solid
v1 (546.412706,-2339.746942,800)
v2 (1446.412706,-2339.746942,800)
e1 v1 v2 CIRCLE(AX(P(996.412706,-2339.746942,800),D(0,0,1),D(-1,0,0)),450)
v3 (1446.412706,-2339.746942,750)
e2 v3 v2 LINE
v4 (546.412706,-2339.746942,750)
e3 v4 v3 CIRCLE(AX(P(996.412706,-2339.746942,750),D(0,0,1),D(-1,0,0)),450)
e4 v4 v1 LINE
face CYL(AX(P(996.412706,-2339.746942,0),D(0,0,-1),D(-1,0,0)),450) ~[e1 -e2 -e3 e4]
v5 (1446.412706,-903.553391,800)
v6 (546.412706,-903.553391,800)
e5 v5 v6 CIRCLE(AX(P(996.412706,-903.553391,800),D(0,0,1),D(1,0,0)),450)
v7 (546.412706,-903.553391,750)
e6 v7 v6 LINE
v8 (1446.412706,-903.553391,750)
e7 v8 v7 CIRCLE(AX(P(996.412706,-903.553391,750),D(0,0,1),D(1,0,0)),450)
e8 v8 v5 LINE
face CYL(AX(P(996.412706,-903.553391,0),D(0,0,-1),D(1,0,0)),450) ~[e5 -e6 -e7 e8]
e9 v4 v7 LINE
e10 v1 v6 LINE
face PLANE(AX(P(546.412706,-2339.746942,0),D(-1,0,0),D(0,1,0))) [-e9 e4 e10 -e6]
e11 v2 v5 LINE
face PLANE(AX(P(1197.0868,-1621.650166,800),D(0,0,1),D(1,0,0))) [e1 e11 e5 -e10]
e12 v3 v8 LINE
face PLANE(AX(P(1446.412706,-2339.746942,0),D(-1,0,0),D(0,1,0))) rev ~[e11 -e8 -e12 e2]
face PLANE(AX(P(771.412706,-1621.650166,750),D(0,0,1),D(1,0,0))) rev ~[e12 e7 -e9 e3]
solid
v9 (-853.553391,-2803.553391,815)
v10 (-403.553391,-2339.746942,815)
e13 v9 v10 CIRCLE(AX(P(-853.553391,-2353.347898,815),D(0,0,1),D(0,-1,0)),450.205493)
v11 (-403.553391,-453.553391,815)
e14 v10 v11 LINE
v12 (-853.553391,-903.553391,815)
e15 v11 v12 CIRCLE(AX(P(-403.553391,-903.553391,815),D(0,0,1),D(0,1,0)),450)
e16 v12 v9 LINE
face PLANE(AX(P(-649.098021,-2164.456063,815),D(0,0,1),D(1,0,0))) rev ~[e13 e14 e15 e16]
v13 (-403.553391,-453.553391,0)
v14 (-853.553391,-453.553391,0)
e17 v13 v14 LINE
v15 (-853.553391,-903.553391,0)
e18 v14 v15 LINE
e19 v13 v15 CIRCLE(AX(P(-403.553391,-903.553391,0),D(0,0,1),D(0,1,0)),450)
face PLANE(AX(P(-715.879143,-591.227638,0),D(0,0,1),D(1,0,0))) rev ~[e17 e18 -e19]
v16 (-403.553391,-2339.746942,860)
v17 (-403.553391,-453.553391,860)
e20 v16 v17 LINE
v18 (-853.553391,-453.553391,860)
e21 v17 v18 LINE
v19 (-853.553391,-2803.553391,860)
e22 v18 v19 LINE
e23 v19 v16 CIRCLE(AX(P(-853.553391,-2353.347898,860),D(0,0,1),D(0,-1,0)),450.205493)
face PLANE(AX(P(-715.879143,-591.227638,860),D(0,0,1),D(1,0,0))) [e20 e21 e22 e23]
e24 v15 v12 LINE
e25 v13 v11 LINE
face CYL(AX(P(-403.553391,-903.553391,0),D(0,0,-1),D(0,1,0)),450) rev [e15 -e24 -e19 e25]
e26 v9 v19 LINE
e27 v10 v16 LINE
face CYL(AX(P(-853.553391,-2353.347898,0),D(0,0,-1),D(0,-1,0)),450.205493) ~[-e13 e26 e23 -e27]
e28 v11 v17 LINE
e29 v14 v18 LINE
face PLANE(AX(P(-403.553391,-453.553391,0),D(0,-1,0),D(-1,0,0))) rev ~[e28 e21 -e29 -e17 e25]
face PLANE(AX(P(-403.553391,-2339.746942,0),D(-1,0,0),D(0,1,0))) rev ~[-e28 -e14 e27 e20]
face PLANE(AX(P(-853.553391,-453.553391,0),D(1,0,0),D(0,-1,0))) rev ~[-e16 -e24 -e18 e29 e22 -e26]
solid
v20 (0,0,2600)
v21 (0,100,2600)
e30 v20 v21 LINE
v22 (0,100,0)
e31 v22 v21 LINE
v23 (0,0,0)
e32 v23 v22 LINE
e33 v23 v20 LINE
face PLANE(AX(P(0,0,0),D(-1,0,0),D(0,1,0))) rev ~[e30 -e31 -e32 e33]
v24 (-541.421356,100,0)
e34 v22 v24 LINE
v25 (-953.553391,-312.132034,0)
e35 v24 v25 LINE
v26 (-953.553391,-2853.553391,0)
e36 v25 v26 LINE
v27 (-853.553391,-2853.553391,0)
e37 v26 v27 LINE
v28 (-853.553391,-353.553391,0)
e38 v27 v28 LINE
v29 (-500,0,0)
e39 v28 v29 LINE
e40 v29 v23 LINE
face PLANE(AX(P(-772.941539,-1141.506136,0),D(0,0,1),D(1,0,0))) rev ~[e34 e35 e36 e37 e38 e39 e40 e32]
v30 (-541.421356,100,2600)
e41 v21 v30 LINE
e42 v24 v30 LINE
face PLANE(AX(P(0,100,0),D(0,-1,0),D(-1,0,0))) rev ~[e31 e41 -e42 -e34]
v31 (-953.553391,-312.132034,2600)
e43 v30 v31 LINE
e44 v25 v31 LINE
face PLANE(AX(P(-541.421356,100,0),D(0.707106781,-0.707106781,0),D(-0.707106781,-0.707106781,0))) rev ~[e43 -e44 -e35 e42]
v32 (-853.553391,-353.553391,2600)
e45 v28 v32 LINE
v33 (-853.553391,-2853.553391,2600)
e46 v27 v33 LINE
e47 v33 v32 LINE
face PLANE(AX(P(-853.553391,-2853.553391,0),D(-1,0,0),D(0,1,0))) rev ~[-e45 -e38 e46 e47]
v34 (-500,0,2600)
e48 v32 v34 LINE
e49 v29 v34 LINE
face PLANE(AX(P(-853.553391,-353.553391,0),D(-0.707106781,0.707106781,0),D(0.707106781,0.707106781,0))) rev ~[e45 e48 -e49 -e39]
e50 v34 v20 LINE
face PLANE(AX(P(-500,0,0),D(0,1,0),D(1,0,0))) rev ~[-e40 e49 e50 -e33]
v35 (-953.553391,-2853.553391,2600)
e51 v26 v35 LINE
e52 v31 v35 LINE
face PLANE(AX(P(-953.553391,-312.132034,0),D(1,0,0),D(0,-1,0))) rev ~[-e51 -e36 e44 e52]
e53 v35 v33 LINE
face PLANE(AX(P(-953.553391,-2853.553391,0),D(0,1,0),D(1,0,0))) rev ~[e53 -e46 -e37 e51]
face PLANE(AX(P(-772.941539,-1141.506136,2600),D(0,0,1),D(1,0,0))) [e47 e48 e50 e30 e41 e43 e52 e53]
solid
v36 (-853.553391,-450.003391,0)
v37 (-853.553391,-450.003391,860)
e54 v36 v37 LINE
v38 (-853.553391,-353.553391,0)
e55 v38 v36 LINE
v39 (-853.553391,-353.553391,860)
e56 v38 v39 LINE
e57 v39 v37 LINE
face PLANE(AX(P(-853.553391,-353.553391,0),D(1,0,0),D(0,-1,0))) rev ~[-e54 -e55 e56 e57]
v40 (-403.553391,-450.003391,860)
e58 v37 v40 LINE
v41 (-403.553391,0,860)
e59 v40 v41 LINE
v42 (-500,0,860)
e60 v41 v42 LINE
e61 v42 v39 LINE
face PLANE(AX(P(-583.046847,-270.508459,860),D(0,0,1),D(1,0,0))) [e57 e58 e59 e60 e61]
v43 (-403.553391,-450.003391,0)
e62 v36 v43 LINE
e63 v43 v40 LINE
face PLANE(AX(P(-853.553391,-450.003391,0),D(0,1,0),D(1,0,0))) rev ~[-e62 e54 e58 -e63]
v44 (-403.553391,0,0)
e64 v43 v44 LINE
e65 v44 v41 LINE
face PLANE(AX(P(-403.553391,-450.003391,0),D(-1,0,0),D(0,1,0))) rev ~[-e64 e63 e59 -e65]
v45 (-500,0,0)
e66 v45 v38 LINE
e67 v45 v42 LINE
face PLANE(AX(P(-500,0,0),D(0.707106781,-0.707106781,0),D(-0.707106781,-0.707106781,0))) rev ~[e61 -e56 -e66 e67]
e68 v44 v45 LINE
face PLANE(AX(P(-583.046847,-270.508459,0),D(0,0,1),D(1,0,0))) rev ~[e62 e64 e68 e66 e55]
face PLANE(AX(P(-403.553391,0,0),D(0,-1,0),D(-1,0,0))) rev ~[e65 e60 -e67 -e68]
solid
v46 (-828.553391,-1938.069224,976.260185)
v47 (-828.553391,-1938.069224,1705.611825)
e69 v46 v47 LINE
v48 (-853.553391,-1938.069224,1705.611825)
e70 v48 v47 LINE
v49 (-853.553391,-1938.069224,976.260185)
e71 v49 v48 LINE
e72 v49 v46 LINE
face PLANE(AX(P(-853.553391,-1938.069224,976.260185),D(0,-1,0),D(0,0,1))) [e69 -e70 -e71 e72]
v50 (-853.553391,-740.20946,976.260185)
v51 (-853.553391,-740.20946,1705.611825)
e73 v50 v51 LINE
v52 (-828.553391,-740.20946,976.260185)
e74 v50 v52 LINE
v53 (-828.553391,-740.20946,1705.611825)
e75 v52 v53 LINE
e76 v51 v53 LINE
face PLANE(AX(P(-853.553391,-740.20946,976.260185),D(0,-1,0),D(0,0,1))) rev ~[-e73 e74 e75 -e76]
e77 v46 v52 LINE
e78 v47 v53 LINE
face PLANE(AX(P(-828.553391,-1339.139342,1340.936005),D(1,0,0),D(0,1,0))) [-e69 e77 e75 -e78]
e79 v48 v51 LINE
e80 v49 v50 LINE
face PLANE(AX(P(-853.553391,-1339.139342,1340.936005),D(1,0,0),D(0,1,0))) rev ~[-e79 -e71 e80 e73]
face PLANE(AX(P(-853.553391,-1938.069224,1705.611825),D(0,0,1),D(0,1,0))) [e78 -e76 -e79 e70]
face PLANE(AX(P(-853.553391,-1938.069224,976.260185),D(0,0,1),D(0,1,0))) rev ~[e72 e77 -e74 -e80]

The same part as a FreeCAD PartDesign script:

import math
import FreeCAD as App
import Part
import Sketcher
from FreeCAD import Vector
Q = App.Units.Quantity


def add_polygon(sketch, points):
    """Adds a closed chain of lines whose ends are joined by coincident constraints."""
    first, n = sketch.GeometryCount, len(points)
    for a, b in zip(points, points[1:] + points[:1]):
        sketch.addGeometry(Part.LineSegment(App.Vector(*a, 0), App.Vector(*b, 0)), False)
    for i in range(n):
        sketch.addConstraint(Sketcher.Constraint("Coincident", first + i, 2, first + (i + 1) % n, 1))

doc = App.newDocument("Part")
body = doc.addObject("PartDesign::Body", "Body")

# Sketch on XY plane
sketch1 = doc.addObject("Sketcher::SketchObject", "Sketch")
body.addObject(sketch1)
sketch1.AttachmentSupport = (doc.XY_Plane, [""])
sketch1.MapMode = "FlatFace"
add_polygon(sketch1, [(0, 0), (0, 100), (-541, 100), (-954, -312), (-954, -2854), (-854, -2854), (-854, -354), (-500, 0)])  # lines 0-7
sketch1.addConstraint([
    Sketcher.Constraint("Vertical", 0),
    Sketcher.Constraint("Horizontal", 1),
    Sketcher.Constraint("Vertical", 3),
    Sketcher.Constraint("Horizontal", 4),
    Sketcher.Constraint("Vertical", 5),
    Sketcher.Constraint("Horizontal", 7),
    Sketcher.Constraint("Coincident", 7, 2, -1, 1),
    Sketcher.Constraint("Parallel", 2, 6),
    Sketcher.Constraint("Equal", 4, 0),
    Sketcher.Constraint("DistanceX", 4, 1, 4, 2, Q("100 mm")),
    Sketcher.Constraint("DistanceX", 7, 1, 7, 2, Q("500 mm")),
    Sketcher.Constraint("DistanceY", 5, 1, 5, 2, Q("2500 mm")),
    Sketcher.Constraint("Angle", 2, Q("-135 deg")),
    Sketcher.Constraint("Distance", 6, Q("500 mm")),
    Sketcher.Constraint("DistanceX", 1, 2, 1, 1, Q("541.421356 mm")),
])
pad1 = doc.addObject("PartDesign::Pad", "Pad")
body.addObject(pad1)
pad1.Profile = sketch1
pad1.Length = 2600
body2 = doc.addObject("PartDesign::Body", "Body001")

# Sketch on XY plane
sketch2 = doc.addObject("Sketcher::SketchObject", "Sketch001")
body2.addObject(sketch2)
sketch2.AttachmentSupport = (doc.getObject("XY_Plane001"), [""])
sketch2.MapMode = "FlatFace"
add_polygon(sketch2, [(-404, -450), (-404, 0), (-500, 0), (-854, -354), (-854, -450)])  # lines 0-4
sketch2.addConstraint([
    Sketcher.Constraint("Vertical", 0),
    Sketcher.Constraint("Horizontal", 1),
    Sketcher.Constraint("Vertical", 3),
    Sketcher.Constraint("Horizontal", 4),
    Sketcher.Constraint("PointOnObject", 0, 2, -1),
    Sketcher.Constraint("DistanceX", 4, 1, 4, 2, Q("450 mm")),
    Sketcher.Constraint("Angle", 2, Q("-135 deg")),
    Sketcher.Constraint("Distance", 2, Q("500 mm")),
    Sketcher.Constraint("DistanceX", 1, 2, -1, 1, Q("500 mm")),
    Sketcher.Constraint("DistanceY", 3, 2, 3, 1, Q("96.45 mm")),
])
pad2 = doc.addObject("PartDesign::Pad", "Pad001")
body2.addObject(pad2)
pad2.Profile = sketch2
pad2.Length = 860
body3 = doc.addObject("PartDesign::Body", "Body002")

# Sketch on XY plane
sketch3 = doc.addObject("Sketcher::SketchObject", "Sketch002")
body3.addObject(sketch3)
sketch3.AttachmentSupport = (doc.getObject("XY_Plane002"), [""])
sketch3.MapMode = "FlatFace"
sketch3.addGeometry([
    Part.LineSegment(Vector(-404, -454, 0), Vector(-854, -454, 0)),
    Part.LineSegment(Vector(-854, -454, 0), Vector(-854, -2804, 0)),
    Part.ArcOfCircle(Part.Circle(Vector(-854, -2353, 0), Vector(0, 0, 1), 450), math.radians(-90), math.radians(2)),
    Part.LineSegment(Vector(-404, -2340, 0), Vector(-404, -454, 0)),
], False)
sketch3.addConstraint([
    Sketcher.Constraint("Coincident", 0, 2, 1, 1),
    Sketcher.Constraint("Coincident", 1, 2, 2, 1),
    Sketcher.Constraint("Coincident", 2, 2, 3, 1),
    Sketcher.Constraint("Coincident", 3, 2, 0, 1),
    Sketcher.Constraint("Horizontal", 0),
    Sketcher.Constraint("Vertical", 1),
    Sketcher.Constraint("Vertical", 3),
    Sketcher.Constraint("Vertical", 2, 3, 0, 2),
    Sketcher.Constraint("DistanceX", 0, 2, 0, 1, Q("450 mm")),
    Sketcher.Constraint("DistanceY", 1, 2, 1, 1, Q("2350 mm")),
    Sketcher.Constraint("Radius", 2, Q("450.205493 mm")),
    Sketcher.Constraint("DistanceX", 2, 3, -1, 1, Q("853.553391 mm")),
    Sketcher.Constraint("DistanceY", 0, 2, -1, 1, Q("453.553391 mm")),
])
pad3 = doc.addObject("PartDesign::Pad", "Pad002")
body3.addObject(pad3)
pad3.Profile = sketch3
pad3.Length = 860

# Sketch on XY plane
sketch4 = doc.addObject("Sketcher::SketchObject", "Sketch003")
body3.addObject(sketch4)
sketch4.AttachmentSupport = (doc.getObject("XY_Plane002"), [""])
sketch4.MapMode = "FlatFace"
sketch4.addGeometry([
    Part.ArcOfCircle(Part.Circle(Vector(-854, -2353, 0), Vector(0, 0, 1), 450), math.radians(-90), math.radians(2)),
    Part.LineSegment(Vector(-404, -2340, 0), Vector(-404, -454, 0)),
    Part.ArcOfCircle(Part.Circle(Vector(-404, -904, 0), Vector(0, 0, 1), 450), math.radians(90), math.radians(180)),
    Part.LineSegment(Vector(-854, -904, 0), Vector(-854, -2804, 0)),
], False)
sketch4.addConstraint([
    Sketcher.Constraint("Coincident", 0, 2, 1, 1),
    Sketcher.Constraint("Coincident", 1, 2, 2, 1),
    Sketcher.Constraint("Tangent", 2, 2, 3, 1),
    Sketcher.Constraint("Coincident", 3, 2, 0, 1),
    Sketcher.Constraint("Vertical", 1),
    Sketcher.Constraint("Vertical", 3),
    Sketcher.Constraint("Vertical", 2, 3, 0, 2),
    Sketcher.Constraint("Vertical", 0, 3, 2, 2),
    Sketcher.Constraint("Radius", 2, Q("450 mm")),
    Sketcher.Constraint("DistanceY", 3, 2, 3, 1, Q("1900 mm")),
    Sketcher.Constraint("Radius", 0, Q("450.205493 mm")),
    Sketcher.Constraint("DistanceX", 0, 3, -1, 1, Q("853.553391 mm")),
    Sketcher.Constraint("DistanceY", 2, 3, -1, 1, Q("903.553391 mm")),
])
pocket1 = doc.addObject("PartDesign::Pocket", "Pocket")
body3.addObject(pocket1)
pocket1.Profile = sketch4
pocket1.Length = 815
pocket1.Reversed = True
body4 = doc.addObject("PartDesign::Body", "Body003")

# Sketch on XY plane
sketch5 = doc.addObject("Sketcher::SketchObject", "Sketch004")
body4.addObject(sketch5)
sketch5.AttachmentSupport = (doc.getObject("XY_Plane003"), [""])
sketch5.MapMode = "FlatFace"
sketch5.addGeometry([
    Part.LineSegment(Vector(546, -904, 0), Vector(546, -2340, 0)),
    Part.ArcOfCircle(Part.Circle(Vector(996, -2340, 0), Vector(0, 0, 1), 450), math.radians(180), math.radians(360)),
    Part.LineSegment(Vector(1446, -2340, 0), Vector(1446, -904, 0)),
    Part.ArcOfCircle(Part.Circle(Vector(996, -904, 0), Vector(0, 0, 1), 450), math.radians(0), math.radians(180)),
], False)
sketch5.addConstraint([
    Sketcher.Constraint("Tangent", 0, 2, 1, 1),
    Sketcher.Constraint("Tangent", 1, 2, 2, 1),
    Sketcher.Constraint("Tangent", 2, 2, 3, 1),
    Sketcher.Constraint("Tangent", 3, 2, 0, 1),
    Sketcher.Constraint("Vertical", 0),
    Sketcher.Constraint("Vertical", 2),
    Sketcher.Constraint("Radius", 1, Q("450 mm")),
    Sketcher.Constraint("DistanceY", 0, 2, 0, 1, Q("1436.193552 mm")),
    Sketcher.Constraint("DistanceY", 3, 3, -1, 1, Q("903.553391 mm")),
    Sketcher.Constraint("DistanceX", -1, 1, 1, 3, Q("996.412706 mm")),
])
pad4 = doc.addObject("PartDesign::Pad", "Pad003")
body4.addObject(pad4)
pad4.Profile = sketch5
pad4.Length = 800

# Sketch on XY plane
sketch6 = doc.addObject("Sketcher::SketchObject", "Sketch005")
body4.addObject(sketch6)
sketch6.AttachmentSupport = (doc.getObject("XY_Plane003"), [""])
sketch6.MapMode = "FlatFace"
sketch6.addGeometry([
    Part.LineSegment(Vector(546, -904, 0), Vector(546, -2340, 0)),
    Part.ArcOfCircle(Part.Circle(Vector(996, -2340, 0), Vector(0, 0, 1), 450), math.radians(180), math.radians(360)),
    Part.LineSegment(Vector(1446, -2340, 0), Vector(1446, -904, 0)),
    Part.ArcOfCircle(Part.Circle(Vector(996, -904, 0), Vector(0, 0, 1), 450), math.radians(0), math.radians(180)),
], False)
sketch6.addConstraint([
    Sketcher.Constraint("Tangent", 0, 2, 1, 1),
    Sketcher.Constraint("Tangent", 1, 2, 2, 1),
    Sketcher.Constraint("Tangent", 2, 2, 3, 1),
    Sketcher.Constraint("Tangent", 3, 2, 0, 1),
    Sketcher.Constraint("Vertical", 0),
    Sketcher.Constraint("Vertical", 2),
    Sketcher.Constraint("Radius", 1, Q("450 mm")),
    Sketcher.Constraint("DistanceY", 0, 2, 0, 1, Q("1436.193552 mm")),
    Sketcher.Constraint("DistanceY", 3, 3, -1, 1, Q("903.553391 mm")),
    Sketcher.Constraint("DistanceX", -1, 1, 1, 3, Q("996.412706 mm")),
])
pocket2 = doc.addObject("PartDesign::Pocket", "Pocket001")
body4.addObject(pocket2)
pocket2.Profile = sketch6
pocket2.Length = 750
pocket2.Reversed = True
body5 = doc.addObject("PartDesign::Body", "Body004")

# Sketch on YZ plane
sketch7 = doc.addObject("Sketcher::SketchObject", "Sketch006")
body5.addObject(sketch7)
sketch7.AttachmentSupport = (doc.getObject("YZ_Plane004"), [""])
sketch7.MapMode = "FlatFace"
sketch7.AttachmentOffset = App.Placement(Vector(0, 0, -853.553391), App.Rotation())
add_polygon(sketch7, [(-1938, 1706), (-1938, 976), (-740, 976), (-740, 1706)])  # lines 0-3
sketch7.addConstraint([
    Sketcher.Constraint("Vertical", 0),
    Sketcher.Constraint("Horizontal", 1),
    Sketcher.Constraint("Vertical", 2),
    Sketcher.Constraint("Horizontal", 3),
    Sketcher.Constraint("DistanceY", 0, 2, 0, 1, Q("729.35164 mm")),
    Sketcher.Constraint("DistanceX", 1, 1, 1, 2, Q("1197.859764 mm")),
    Sketcher.Constraint("DistanceX", 1, 2, -1, 1, Q("740.20946 mm")),
    Sketcher.Constraint("DistanceY", -1, 1, 0, 2, Q("976.260185 mm")),
])
pad5 = doc.addObject("PartDesign::Pad", "Pad004")
body5.addObject(pad5)
pad5.Profile = sketch7
pad5.Length = 25

doc.recompute()
